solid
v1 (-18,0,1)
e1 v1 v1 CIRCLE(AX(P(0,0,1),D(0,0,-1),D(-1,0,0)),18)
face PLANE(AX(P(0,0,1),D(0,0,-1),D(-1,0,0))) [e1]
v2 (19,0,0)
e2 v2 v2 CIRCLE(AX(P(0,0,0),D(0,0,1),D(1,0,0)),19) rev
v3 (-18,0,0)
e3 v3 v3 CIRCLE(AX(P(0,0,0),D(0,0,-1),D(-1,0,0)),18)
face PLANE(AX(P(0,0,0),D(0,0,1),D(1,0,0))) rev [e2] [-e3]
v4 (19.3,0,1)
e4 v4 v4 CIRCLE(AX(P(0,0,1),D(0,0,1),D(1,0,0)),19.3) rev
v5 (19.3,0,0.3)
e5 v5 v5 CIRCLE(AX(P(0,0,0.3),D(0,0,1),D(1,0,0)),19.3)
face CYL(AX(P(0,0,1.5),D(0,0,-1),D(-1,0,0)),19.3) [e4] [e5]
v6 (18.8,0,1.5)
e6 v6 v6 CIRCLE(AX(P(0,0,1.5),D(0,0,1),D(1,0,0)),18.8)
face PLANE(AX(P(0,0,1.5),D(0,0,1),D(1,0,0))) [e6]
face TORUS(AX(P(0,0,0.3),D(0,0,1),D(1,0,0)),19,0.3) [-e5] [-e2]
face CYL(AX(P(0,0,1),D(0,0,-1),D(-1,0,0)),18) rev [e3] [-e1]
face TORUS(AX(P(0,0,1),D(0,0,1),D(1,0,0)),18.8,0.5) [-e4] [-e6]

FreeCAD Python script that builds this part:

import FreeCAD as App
import Part
import Sketcher
Q = App.Units.Quantity


def edges_at(feature, points):
    """Names of the edges that pass closest to the given points."""
    edges = feature.Shape.Edges
    near = lambda p: min(range(len(edges)), key=lambda i: edges[i].distToShape(Part.Vertex(*p))[0])
    return sorted({f"Edge{near(p) + 1}" for p in points})

doc = App.newDocument("Part")
body = doc.addObject("PartDesign::Body", "Body")

# Sketch on XY plane
sketch1 = body.newObject("Sketcher::SketchObject", "Sketch")
sketch1.AttachmentSupport = (doc.getObject("XY_Plane"), [""])
sketch1.MapMode = "FlatFace"
sketch1.addGeometry(Part.Circle(App.Vector(0, 0, 0), App.Vector(0, 0, 1), 19), False)
sketch1.addConstraint(Sketcher.Constraint("Coincident", 0, 3, -1, 1))
sketch1.addConstraint(Sketcher.Constraint("Diameter", 0, Q("38.6 mm")))
pad1 = body.newObject("PartDesign::Pad", "Pad")
pad1.Profile = sketch1
pad1.Length = 1.5

# Sketch on XY plane
sketch2 = body.newObject("Sketcher::SketchObject", "Sketch001")
sketch2.AttachmentSupport = (doc.getObject("XY_Plane"), [""])
sketch2.MapMode = "FlatFace"
sketch2.addGeometry(Part.Circle(App.Vector(0, 0, 0), App.Vector(0, 0, 1), 18), False)
sketch2.addConstraint(Sketcher.Constraint("Coincident", 0, 3, -1, 1))
sketch2.addConstraint(Sketcher.Constraint("Diameter", 0, Q("36 mm")))
pocket1 = body.newObject("PartDesign::Pocket", "Pocket")
pocket1.Profile = sketch2
pocket1.Length = 1
pocket1.Reversed = True
doc.recompute()

fillet = body.newObject("PartDesign::Fillet", "Fillet")
fillet.Base = (pocket1, edges_at(pocket1, [(-19.3, 0, 1.5)]))
fillet.Radius = 0.5
doc.recompute()

fillet2 = body.newObject("PartDesign::Fillet", "Fillet001")
fillet2.Base = (fillet, edges_at(fillet, [(-19.3, 0, 0)]))
fillet2.Radius = 0.3

doc.recompute()
